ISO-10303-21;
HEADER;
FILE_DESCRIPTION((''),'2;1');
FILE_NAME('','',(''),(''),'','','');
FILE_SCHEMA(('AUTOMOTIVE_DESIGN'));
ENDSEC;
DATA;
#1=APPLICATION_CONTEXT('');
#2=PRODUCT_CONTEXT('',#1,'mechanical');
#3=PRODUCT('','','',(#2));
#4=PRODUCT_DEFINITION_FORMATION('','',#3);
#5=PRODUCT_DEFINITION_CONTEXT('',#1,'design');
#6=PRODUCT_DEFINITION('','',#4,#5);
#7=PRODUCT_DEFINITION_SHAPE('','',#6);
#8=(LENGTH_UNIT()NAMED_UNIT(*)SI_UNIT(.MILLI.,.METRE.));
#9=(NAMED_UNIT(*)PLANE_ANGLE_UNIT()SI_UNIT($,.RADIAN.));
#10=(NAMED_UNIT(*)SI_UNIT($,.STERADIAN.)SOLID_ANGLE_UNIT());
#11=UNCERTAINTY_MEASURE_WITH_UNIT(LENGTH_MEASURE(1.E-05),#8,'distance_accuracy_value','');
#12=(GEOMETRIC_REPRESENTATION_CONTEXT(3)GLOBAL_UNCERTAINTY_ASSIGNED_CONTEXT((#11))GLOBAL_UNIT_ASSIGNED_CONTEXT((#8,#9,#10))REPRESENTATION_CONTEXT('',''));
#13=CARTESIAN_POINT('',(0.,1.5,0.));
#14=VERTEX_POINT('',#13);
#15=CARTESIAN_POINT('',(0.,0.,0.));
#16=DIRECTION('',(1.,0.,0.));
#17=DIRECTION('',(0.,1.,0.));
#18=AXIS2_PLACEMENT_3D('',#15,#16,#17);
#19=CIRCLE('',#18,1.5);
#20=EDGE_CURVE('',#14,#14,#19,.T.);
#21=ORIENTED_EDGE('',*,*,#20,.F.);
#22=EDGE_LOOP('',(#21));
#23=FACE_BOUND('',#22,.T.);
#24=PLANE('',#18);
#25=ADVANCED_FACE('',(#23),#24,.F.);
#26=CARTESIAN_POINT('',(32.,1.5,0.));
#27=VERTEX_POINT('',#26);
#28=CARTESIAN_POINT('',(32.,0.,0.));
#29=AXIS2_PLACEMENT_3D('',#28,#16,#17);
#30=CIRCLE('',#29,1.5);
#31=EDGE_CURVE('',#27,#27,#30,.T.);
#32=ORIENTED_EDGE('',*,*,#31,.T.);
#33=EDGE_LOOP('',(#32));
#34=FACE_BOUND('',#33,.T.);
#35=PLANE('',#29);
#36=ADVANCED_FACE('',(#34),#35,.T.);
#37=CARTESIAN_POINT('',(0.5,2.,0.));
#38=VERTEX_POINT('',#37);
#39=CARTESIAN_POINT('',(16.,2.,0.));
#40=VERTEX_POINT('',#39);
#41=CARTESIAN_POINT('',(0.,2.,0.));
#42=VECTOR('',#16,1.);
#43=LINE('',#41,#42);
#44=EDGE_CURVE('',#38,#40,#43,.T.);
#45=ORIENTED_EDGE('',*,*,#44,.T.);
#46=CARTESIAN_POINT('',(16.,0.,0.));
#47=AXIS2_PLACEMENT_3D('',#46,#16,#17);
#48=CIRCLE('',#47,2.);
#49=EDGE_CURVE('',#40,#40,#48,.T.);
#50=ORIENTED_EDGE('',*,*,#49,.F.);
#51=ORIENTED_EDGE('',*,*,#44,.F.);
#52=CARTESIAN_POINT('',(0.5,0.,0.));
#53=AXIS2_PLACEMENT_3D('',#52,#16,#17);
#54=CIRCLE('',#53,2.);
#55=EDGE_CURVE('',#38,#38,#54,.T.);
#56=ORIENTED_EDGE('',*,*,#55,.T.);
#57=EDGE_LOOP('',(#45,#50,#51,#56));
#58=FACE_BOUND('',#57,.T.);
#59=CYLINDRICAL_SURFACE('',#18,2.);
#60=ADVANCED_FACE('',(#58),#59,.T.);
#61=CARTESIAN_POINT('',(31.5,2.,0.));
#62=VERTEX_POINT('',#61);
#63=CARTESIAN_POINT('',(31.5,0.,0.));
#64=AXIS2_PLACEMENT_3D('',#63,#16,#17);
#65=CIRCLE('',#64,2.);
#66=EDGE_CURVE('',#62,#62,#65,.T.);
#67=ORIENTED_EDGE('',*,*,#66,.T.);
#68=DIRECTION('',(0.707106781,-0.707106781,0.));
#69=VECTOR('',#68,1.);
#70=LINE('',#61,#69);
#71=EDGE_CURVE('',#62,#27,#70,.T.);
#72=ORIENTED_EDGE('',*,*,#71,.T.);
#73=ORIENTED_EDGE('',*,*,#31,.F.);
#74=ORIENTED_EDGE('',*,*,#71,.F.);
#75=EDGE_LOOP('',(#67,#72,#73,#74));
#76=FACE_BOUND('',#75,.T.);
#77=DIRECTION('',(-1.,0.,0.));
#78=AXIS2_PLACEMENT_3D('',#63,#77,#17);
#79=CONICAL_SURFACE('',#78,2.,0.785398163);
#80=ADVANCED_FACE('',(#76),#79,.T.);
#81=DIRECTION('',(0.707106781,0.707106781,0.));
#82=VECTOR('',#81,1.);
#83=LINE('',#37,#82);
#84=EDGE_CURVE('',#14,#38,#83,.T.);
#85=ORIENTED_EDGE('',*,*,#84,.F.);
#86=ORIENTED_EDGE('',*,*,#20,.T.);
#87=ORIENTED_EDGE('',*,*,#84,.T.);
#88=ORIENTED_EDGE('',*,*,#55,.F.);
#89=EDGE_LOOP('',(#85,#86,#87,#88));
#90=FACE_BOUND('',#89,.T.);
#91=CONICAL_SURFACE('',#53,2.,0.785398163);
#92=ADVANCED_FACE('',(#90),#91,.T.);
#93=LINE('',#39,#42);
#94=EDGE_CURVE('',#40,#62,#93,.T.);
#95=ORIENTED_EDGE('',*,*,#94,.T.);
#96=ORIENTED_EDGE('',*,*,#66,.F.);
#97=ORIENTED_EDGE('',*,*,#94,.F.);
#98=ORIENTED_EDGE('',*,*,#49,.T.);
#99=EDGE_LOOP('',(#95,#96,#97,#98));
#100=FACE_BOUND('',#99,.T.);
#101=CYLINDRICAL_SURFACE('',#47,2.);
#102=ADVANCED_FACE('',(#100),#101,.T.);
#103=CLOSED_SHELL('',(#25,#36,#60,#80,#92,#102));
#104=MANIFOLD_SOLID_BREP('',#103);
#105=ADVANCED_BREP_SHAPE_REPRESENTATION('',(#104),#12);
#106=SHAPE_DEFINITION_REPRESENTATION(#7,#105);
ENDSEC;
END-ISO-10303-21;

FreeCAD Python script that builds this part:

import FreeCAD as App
import Part
import Sketcher
from FreeCAD import Vector


def edges_at(feature, points):
    """Names of the edges that pass closest to the given points."""
    edges = feature.Shape.Edges
    near = lambda p: min(range(len(edges)), key=lambda i: edges[i].distToShape(Part.Vertex(*p))[0])
    return sorted({f"Edge{near(p) + 1}" for p in points})

doc = App.newDocument("Part")
body = doc.addObject("PartDesign::Body", "Body")

# Sketch on XY plane
sketch1 = body.newObject("Sketcher::SketchObject", "Sketch")
sketch1.AttachmentSupport = (doc.getObject("XY_Plane"), [""])
sketch1.MapMode = "FlatFace"
sketch1.addGeometry(Part.LineSegment(Vector(0, 2, 0), Vector(0, 0, 0)), False)
sketch1.addGeometry(Part.LineSegment(Vector(0, 0, 0), Vector(32, 0, 0)), False)
sketch1.addGeometry(Part.LineSegment(Vector(32, 0, 0), Vector(32, 2, 0)), False)
sketch1.addGeometry(Part.LineSegment(Vector(32, 2, 0), Vector(0, 2, 0)), False)
sketch1.addConstraint(Sketcher.Constraint("Coincident", 0, 2, 1, 1))
sketch1.addConstraint(Sketcher.Constraint("Coincident", 1, 2, 2, 1))
sketch1.addConstraint(Sketcher.Constraint("Coincident", 2, 2, 3, 1))
sketch1.addConstraint(Sketcher.Constraint("Coincident", 3, 2, 0, 1))
sketch1.addConstraint(Sketcher.Constraint("Vertical", 0))
sketch1.addConstraint(Sketcher.Constraint("Horizontal", 1))
sketch1.addConstraint(Sketcher.Constraint("Vertical", 2))
sketch1.addConstraint(Sketcher.Constraint("Horizontal", 3))
sketch1.addConstraint(Sketcher.Constraint("Coincident", 0, 2, -1, 1))
sketch1.addConstraint(Sketcher.Constraint("DistanceX", 1, 1, 1, 2, 32.0))
sketch1.addConstraint(Sketcher.Constraint("DistanceY", 0, 2, 0, 1, 2.0))
revolution = body.newObject("PartDesign::Revolution", "Revolution")
revolution.Profile = sketch1
revolution.ReferenceAxis = (sketch1, ["H_Axis"])
revolution.Angle = 360
doc.recompute()

chamfer = body.newObject("PartDesign::Chamfer", "Chamfer")
chamfer.Base = (revolution, edges_at(revolution, [(0, -2, 0)]))
chamfer.Size = 0.5
doc.recompute()

chamfer2 = body.newObject("PartDesign::Chamfer", "Chamfer001")
chamfer2.Base = (chamfer, edges_at(chamfer, [(32, -2, 0)]))
chamfer2.Size = 0.5

doc.recompute()
